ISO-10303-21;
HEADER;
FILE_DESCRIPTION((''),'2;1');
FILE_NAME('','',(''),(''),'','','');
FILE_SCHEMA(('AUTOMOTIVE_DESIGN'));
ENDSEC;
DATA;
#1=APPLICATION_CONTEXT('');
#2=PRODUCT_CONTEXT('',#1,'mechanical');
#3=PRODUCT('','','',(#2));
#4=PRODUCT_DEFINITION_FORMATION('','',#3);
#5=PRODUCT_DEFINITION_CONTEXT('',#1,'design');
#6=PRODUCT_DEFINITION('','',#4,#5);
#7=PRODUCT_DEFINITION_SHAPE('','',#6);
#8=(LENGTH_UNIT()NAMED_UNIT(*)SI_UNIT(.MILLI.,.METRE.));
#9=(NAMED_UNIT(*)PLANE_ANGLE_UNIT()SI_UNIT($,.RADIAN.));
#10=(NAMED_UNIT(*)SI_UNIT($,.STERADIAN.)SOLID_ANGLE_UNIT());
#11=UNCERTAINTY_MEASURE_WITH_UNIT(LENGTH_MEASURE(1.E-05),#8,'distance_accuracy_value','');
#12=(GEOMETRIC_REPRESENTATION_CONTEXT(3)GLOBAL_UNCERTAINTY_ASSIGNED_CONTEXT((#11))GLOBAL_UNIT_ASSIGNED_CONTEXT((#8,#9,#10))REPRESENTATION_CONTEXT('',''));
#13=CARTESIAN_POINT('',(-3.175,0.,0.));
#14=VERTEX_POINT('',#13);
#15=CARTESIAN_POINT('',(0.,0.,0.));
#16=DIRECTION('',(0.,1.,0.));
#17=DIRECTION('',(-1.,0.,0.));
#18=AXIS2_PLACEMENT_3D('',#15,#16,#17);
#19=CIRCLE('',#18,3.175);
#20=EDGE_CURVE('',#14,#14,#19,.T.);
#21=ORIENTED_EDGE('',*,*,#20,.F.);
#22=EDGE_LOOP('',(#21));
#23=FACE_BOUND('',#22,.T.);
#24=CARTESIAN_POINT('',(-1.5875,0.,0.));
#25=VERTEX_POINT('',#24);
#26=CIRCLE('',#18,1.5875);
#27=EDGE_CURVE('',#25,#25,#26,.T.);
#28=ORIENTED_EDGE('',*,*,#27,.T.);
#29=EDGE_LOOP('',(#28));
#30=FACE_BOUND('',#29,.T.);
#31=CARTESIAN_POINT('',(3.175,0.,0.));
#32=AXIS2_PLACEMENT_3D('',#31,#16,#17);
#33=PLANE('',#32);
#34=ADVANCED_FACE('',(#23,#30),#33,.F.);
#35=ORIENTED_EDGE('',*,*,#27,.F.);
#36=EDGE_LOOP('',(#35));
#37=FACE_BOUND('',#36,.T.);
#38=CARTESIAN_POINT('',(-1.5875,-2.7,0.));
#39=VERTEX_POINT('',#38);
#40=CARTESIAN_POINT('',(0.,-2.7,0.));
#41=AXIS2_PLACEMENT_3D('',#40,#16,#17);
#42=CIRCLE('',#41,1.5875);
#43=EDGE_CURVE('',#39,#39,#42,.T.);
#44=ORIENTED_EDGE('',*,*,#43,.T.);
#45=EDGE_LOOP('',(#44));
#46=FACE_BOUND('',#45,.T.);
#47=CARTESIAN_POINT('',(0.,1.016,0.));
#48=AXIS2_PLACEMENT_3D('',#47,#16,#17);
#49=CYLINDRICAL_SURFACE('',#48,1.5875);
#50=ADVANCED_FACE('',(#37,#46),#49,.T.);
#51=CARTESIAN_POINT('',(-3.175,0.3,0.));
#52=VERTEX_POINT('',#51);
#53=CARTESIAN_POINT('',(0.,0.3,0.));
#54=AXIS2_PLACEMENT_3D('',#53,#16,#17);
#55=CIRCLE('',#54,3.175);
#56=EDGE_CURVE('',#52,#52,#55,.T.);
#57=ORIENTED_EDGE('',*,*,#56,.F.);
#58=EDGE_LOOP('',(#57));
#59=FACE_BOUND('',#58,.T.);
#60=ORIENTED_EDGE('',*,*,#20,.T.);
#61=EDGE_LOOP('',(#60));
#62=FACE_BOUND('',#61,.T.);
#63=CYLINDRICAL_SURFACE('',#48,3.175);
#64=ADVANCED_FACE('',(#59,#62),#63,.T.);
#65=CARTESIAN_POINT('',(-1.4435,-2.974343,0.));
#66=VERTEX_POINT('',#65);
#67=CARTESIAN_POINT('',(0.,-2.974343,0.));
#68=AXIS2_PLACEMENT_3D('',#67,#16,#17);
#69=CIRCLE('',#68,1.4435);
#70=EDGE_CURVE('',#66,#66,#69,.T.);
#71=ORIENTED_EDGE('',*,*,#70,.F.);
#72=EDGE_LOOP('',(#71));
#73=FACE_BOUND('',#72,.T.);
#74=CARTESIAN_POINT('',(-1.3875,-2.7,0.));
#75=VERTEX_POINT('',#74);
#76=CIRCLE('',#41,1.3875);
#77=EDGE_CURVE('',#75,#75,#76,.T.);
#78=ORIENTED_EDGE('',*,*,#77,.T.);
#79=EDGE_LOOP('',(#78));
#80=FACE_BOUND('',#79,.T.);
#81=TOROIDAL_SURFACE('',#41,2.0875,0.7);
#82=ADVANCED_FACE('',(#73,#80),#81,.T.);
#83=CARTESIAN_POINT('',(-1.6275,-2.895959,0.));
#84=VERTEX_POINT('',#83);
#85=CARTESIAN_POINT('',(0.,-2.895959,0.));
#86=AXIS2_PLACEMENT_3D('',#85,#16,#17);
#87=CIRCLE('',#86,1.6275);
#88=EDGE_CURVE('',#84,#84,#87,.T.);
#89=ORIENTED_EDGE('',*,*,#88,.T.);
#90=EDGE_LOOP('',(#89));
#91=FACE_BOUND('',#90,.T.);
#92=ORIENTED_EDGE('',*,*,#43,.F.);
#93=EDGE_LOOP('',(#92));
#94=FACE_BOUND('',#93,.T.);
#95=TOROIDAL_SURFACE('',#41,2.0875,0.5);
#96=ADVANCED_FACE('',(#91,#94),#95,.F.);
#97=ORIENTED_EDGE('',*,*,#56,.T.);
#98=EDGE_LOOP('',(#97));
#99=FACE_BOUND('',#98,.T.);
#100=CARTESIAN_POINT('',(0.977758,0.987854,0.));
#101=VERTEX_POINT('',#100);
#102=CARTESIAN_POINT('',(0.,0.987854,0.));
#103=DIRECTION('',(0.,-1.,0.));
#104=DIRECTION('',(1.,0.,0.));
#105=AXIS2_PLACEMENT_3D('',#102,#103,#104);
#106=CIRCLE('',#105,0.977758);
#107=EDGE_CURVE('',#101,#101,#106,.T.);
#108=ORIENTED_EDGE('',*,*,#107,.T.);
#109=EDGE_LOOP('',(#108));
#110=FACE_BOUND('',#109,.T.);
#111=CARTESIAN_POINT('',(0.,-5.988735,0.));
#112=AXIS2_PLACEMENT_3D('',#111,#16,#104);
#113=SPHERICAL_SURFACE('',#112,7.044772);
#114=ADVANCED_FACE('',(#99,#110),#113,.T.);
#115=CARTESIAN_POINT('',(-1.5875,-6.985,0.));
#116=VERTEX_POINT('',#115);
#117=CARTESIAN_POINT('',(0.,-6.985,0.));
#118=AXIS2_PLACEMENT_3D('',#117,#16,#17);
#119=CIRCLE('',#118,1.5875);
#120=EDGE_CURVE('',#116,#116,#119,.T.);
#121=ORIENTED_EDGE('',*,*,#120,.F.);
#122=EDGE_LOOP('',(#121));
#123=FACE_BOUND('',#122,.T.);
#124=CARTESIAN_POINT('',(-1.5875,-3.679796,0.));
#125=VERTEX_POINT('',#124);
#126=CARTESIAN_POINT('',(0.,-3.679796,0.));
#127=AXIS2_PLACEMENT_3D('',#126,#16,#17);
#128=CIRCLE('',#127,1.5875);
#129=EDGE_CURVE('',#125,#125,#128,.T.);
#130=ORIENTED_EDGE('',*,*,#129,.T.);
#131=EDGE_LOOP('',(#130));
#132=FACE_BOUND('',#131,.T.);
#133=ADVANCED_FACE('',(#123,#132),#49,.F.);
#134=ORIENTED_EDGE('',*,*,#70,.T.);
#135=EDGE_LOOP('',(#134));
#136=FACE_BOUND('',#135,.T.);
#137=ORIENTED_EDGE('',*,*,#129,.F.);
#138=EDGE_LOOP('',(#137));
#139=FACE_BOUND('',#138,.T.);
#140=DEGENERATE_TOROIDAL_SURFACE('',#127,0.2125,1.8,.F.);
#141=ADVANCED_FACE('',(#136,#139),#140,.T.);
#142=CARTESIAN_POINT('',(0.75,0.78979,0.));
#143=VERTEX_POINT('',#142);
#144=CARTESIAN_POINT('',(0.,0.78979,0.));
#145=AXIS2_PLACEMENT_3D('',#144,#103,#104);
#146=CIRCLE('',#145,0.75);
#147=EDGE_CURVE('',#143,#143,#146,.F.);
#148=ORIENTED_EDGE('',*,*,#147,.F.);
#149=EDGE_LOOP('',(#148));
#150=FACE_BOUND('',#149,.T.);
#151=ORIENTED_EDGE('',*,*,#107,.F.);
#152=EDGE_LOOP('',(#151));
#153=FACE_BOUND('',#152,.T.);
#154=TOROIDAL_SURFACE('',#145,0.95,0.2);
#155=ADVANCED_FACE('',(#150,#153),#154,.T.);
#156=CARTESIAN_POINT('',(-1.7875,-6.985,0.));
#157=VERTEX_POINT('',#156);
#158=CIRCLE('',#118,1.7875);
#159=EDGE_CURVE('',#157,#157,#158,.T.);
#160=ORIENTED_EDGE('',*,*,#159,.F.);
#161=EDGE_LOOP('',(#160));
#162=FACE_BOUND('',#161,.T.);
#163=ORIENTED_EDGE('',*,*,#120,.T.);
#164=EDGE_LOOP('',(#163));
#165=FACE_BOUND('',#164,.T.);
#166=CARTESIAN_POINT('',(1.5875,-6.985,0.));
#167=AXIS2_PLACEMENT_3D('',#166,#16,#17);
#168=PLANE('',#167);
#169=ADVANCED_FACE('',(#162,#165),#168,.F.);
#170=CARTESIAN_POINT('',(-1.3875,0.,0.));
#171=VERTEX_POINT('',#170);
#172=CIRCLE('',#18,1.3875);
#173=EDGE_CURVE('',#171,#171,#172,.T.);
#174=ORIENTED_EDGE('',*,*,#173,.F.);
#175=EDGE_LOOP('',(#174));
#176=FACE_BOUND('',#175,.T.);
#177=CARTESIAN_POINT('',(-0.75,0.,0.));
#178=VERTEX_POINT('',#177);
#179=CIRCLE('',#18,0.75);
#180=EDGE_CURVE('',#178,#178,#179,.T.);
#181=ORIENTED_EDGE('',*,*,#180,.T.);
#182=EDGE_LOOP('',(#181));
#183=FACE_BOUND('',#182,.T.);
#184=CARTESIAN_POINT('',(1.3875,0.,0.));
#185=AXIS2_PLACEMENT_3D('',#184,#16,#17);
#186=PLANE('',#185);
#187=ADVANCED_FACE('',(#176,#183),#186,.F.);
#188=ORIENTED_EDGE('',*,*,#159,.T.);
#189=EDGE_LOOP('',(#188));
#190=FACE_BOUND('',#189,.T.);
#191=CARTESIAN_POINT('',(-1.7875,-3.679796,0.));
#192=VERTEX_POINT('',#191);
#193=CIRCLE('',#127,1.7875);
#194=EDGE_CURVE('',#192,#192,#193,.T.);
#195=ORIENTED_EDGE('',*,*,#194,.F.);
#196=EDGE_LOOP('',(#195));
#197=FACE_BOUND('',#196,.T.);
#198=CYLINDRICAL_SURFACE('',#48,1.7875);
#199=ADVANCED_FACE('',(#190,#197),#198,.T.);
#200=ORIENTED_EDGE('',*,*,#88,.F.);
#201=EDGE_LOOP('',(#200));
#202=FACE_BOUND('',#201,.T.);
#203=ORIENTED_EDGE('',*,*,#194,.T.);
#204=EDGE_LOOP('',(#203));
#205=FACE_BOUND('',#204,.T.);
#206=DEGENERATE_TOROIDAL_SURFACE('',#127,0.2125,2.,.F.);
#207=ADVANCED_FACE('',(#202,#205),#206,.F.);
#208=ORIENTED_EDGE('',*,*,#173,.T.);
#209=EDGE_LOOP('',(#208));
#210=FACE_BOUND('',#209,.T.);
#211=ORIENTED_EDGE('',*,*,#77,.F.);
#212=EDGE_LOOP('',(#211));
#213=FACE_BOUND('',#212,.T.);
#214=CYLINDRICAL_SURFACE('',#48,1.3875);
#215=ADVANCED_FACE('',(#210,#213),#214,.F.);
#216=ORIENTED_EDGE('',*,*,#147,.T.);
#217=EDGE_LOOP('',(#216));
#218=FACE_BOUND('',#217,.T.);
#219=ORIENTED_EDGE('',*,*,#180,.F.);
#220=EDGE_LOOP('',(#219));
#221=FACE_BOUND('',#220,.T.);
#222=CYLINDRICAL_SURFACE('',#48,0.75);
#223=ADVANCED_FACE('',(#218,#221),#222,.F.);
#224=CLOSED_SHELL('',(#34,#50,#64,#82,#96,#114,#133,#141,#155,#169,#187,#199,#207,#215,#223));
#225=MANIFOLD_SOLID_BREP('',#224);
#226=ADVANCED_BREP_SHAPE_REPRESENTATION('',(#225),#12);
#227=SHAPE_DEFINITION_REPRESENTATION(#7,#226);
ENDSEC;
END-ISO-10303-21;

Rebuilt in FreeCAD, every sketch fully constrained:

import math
import FreeCAD as App
import Part
import Sketcher


def edges_at(feature, points):
    """Names of the edges that pass closest to the given points."""
    edges = feature.Shape.Edges
    near = lambda p: min(range(len(edges)), key=lambda i: edges[i].distToShape(Part.Vertex(*p))[0])
    return sorted({f"Edge{near(p) + 1}" for p in points})

doc = App.newDocument("Part")
body = doc.addObject("PartDesign::Body", "Body")

sketch1 = body.newObject("Sketcher::SketchObject", "Sketch")
sketch1.AttachmentSupport = (doc.getObject("XY_Plane"), [""])
sketch1.MapMode = "FlatFace"
sketch1.addGeometry(Part.LineSegment(App.Vector(1.59, -3.68, 0), App.Vector(1.59, -6.99, 0)), False)
sketch1.addGeometry(Part.LineSegment(App.Vector(1.59, -6.99, 0), App.Vector(1.79, -6.99, 0)), False)
sketch1.addGeometry(Part.LineSegment(App.Vector(1.79, -6.99, 0), App.Vector(1.79, -3.68, 0)), False)
sketch1.addGeometry(Part.ArcOfCircle(Part.Circle(App.Vector(-0.21, -3.68, 0), App.Vector(0, 0, 1), 2), math.radians(0), math.radians(23)), False)
sketch1.addGeometry(Part.ArcOfCircle(Part.Circle(App.Vector(2.09, -2.7, 0), App.Vector(0, 0, 1), 0.5), math.radians(180), math.radians(203)), False)
sketch1.addGeometry(Part.LineSegment(App.Vector(1.59, -2.7, 0), App.Vector(1.59, 0, 0)), False)
sketch1.addGeometry(Part.LineSegment(App.Vector(1.59, 0, 0), App.Vector(3.17, 0, 0)), False)
sketch1.addGeometry(Part.LineSegment(App.Vector(3.17, 0, 0), App.Vector(3.17, 0.3, 0)), False)
sketch1.addGeometry(Part.ArcOfCircle(Part.Circle(App.Vector(0, -5.99, 0), App.Vector(0, 0, 1), 7.04), math.radians(63), math.radians(84)), False)
sketch1.addGeometry(Part.LineSegment(App.Vector(0.75, 1.02, 0), App.Vector(0.75, 0, 0)), False)
sketch1.addGeometry(Part.LineSegment(App.Vector(0.75, 0, 0), App.Vector(1.39, 0, 0)), False)
sketch1.addGeometry(Part.LineSegment(App.Vector(1.39, 0, 0), App.Vector(1.39, -2.7, 0)), False)
sketch1.addGeometry(Part.ArcOfCircle(Part.Circle(App.Vector(2.09, -2.7, 0), App.Vector(0, 0, 1), 0.7), math.radians(180), math.radians(203)), False)
sketch1.addGeometry(Part.ArcOfCircle(Part.Circle(App.Vector(-0.21, -3.68, 0), App.Vector(0, 0, 1), 1.8), math.radians(0), math.radians(23)), False)
sketch1.addConstraint(Sketcher.Constraint("Coincident", 0, 2, 1, 1))
sketch1.addConstraint(Sketcher.Constraint("Coincident", 1, 2, 2, 1))
sketch1.addConstraint(Sketcher.Constraint("Tangent", 2, 2, 3, 1))
sketch1.addConstraint(Sketcher.Constraint("Tangent", 3, 2, 4, 2))
sketch1.addConstraint(Sketcher.Constraint("Tangent", 4, 1, 5, 1))
sketch1.addConstraint(Sketcher.Constraint("Coincident", 5, 2, 6, 1))
sketch1.addConstraint(Sketcher.Constraint("Coincident", 6, 2, 7, 1))
sketch1.addConstraint(Sketcher.Constraint("Coincident", 7, 2, 8, 1))
sketch1.addConstraint(Sketcher.Constraint("Coincident", 8, 2, 9, 1))
sketch1.addConstraint(Sketcher.Constraint("Coincident", 9, 2, 10, 1))
sketch1.addConstraint(Sketcher.Constraint("Coincident", 10, 2, 11, 1))
sketch1.addConstraint(Sketcher.Constraint("Tangent", 11, 2, 12, 1))
sketch1.addConstraint(Sketcher.Constraint("Tangent", 12, 2, 13, 2))
sketch1.addConstraint(Sketcher.Constraint("Tangent", 13, 1, 0, 1))
sketch1.addConstraint(Sketcher.Constraint("Vertical", 0))
sketch1.addConstraint(Sketcher.Constraint("Horizontal", 1))
sketch1.addConstraint(Sketcher.Constraint("Vertical", 2))
sketch1.addConstraint(Sketcher.Constraint("Vertical", 5))
sketch1.addConstraint(Sketcher.Constraint("Horizontal", 6))
sketch1.addConstraint(Sketcher.Constraint("Vertical", 7))
sketch1.addConstraint(Sketcher.Constraint("Vertical", 9))
sketch1.addConstraint(Sketcher.Constraint("Horizontal", 10))
sketch1.addConstraint(Sketcher.Constraint("Vertical", 11))
sketch1.addConstraint(Sketcher.Constraint("Coincident", 12, 3, 4, 3))
sketch1.addConstraint(Sketcher.Constraint("Coincident", 13, 3, 3, 3))
sketch1.addConstraint(Sketcher.Constraint("PointOnObject", 8, 3, -2))
sketch1.addConstraint(Sketcher.Constraint("PointOnObject", 5, 2, -1))
sketch1.addConstraint(Sketcher.Constraint("PointOnObject", 9, 2, -1))
sketch1.addConstraint(Sketcher.Constraint("Vertical", 0, 2, 4, 1))
sketch1.addConstraint(Sketcher.Constraint("Radius", 3, 2.0))
sketch1.addConstraint(Sketcher.Constraint("Radius", 4, 0.5))
sketch1.addConstraint(Sketcher.Constraint("Radius", 12, 0.7))
sketch1.addConstraint(Sketcher.Constraint("DistanceY", 5, 1, 5, 2, 2.7))
sketch1.addConstraint(Sketcher.Constraint("DistanceY", 7, 1, 7, 2, 0.3))
sketch1.addConstraint(Sketcher.Constraint("DistanceY", 9, 2, 9, 1, 1.016))
sketch1.addConstraint(Sketcher.Constraint("DistanceX", -1, 1, 8, 2, 0.75))
sketch1.addConstraint(Sketcher.Constraint("DistanceX", 6, 1, 6, 2, 1.5875))
sketch1.addConstraint(Sketcher.Constraint("DistanceX", 10, 1, 10, 2, 0.6375))
sketch1.addConstraint(Sketcher.Constraint("DistanceY", 0, 2, -1, 1, 6.985))
revolution = body.newObject("PartDesign::Revolution", "Revolution")
revolution.Profile = sketch1
revolution.ReferenceAxis = (sketch1, ["V_Axis"])
revolution.Angle = 360
doc.recompute()

fillet = body.newObject("PartDesign::Fillet", "Fillet")
fillet.Base = (revolution, edges_at(revolution, [(-0.75, 1.016, 0)]))
fillet.Radius = 0.2

doc.recompute()
